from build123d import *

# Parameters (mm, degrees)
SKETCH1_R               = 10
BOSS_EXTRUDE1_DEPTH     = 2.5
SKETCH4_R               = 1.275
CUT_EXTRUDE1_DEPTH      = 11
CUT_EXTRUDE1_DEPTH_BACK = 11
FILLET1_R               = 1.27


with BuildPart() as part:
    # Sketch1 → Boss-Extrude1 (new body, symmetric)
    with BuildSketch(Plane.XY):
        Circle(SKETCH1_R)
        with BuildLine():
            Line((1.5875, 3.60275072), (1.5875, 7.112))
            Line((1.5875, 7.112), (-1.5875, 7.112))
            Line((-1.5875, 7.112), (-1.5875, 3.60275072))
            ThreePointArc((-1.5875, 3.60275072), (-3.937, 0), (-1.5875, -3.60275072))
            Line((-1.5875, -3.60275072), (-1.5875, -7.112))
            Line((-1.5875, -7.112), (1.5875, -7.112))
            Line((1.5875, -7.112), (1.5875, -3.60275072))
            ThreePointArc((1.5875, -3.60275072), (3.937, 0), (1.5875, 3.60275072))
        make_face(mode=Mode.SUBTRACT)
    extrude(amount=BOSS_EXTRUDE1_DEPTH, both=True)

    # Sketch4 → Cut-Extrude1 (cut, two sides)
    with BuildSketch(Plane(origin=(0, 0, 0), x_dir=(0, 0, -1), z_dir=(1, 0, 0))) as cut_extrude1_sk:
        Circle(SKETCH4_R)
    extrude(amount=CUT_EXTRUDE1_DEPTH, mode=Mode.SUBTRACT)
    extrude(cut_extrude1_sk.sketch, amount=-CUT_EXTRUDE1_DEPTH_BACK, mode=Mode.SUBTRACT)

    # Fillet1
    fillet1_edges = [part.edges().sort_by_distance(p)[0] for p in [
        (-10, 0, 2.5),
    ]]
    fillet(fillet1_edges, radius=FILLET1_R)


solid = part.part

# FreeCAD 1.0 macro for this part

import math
import FreeCAD as App
import Part
import Sketcher

V = App.Vector
Q = App.Units.Quantity


def edges_at(feature, points):
    """Names of the edges that pass closest to the given points."""
    edges = feature.Shape.Edges
    near = lambda p: min(range(len(edges)), key=lambda i: edges[i].distToShape(Part.Vertex(*p))[0])
    return sorted({f"Edge{near(p) + 1}" for p in points})

doc = App.newDocument("Part")
body = doc.addObject("PartDesign::Body", "Body")

# Sketch on XY plane
sketch1 = body.newObject("Sketcher::SketchObject", "Sketch")
sketch1.AttachmentSupport = (doc.getObject("XY_Plane"), [""])
sketch1.MapMode = "FlatFace"
sketch1.addGeometry([
    Part.Circle(V(0, 0, 0), V(0, 0, 1), 10),  # 0
    Part.LineSegment(V(1.6, 7.1, 0), V(1.6, 3.6, 0)),  # 1
    Part.ArcOfCircle(Part.Circle(V(0, 0, 0), V(0, 0, 1), 3.9), math.radians(-66), math.radians(66)),  # 2
    Part.LineSegment(V(1.6, -3.6, 0), V(1.6, -7.1, 0)),  # 3
    Part.LineSegment(V(1.6, -7.1, 0), V(-1.6, -7.1, 0)),  # 4
    Part.LineSegment(V(-1.6, -7.1, 0), V(-1.6, -3.6, 0)),  # 5
    Part.ArcOfCircle(Part.Circle(V(0, 0, 0), V(0, 0, 1), 3.9), math.radians(114), math.radians(246)),  # 6
    Part.LineSegment(V(-1.6, 3.6, 0), V(-1.6, 7.1, 0)),  # 7
    Part.LineSegment(V(-1.6, 7.1, 0), V(1.6, 7.1, 0)),  # 8
], False)
sketch1.addConstraint([
    Sketcher.Constraint("Coincident", 1, 2, 2, 2),
    Sketcher.Constraint("Coincident", 2, 1, 3, 1),
    Sketcher.Constraint("Coincident", 3, 2, 4, 1),
    Sketcher.Constraint("Coincident", 4, 2, 5, 1),
    Sketcher.Constraint("Coincident", 5, 2, 6, 2),
    Sketcher.Constraint("Coincident", 6, 1, 7, 1),
    Sketcher.Constraint("Coincident", 7, 2, 8, 1),
    Sketcher.Constraint("Coincident", 8, 2, 1, 1),
    Sketcher.Constraint("Vertical", 1),
    Sketcher.Constraint("Vertical", 3),
    Sketcher.Constraint("Horizontal", 4),
    Sketcher.Constraint("Vertical", 5),
    Sketcher.Constraint("Vertical", 7),
    Sketcher.Constraint("Horizontal", 8),
    Sketcher.Constraint("Coincident", 0, 3, -1, 1),
    Sketcher.Constraint("Coincident", 2, 3, -1, 1),
    Sketcher.Constraint("Coincident", 6, 3, -1, 1),
    Sketcher.Constraint("Equal", 2, 6),
    Sketcher.Constraint("Symmetric", 3, 2, 7, 2, -1, 1),
    Sketcher.Constraint("Horizontal", 2, 1, 5, 2),
    Sketcher.Constraint("Horizontal", 1, 2, 6, 1),
    Sketcher.Constraint("Diameter", 0, Q("20 mm")),
    Sketcher.Constraint("Radius", 2, Q("3.937 mm")),
    Sketcher.Constraint("DistanceX", 4, 2, 4, 1, Q("3.175 mm")),
    Sketcher.Constraint("DistanceY", 3, 2, -1, 1, Q("7.112 mm")),
])
pad1 = body.newObject("PartDesign::Pad", "Pad")
pad1.Profile = sketch1
pad1.Length = 5
pad1.Midplane = True

# Sketch on YZ plane
sketch2 = body.newObject("Sketcher::SketchObject", "Sketch001")
sketch2.AttachmentSupport = (doc.getObject("YZ_Plane"), [""])
sketch2.MapMode = "FlatFace"
sketch2.addGeometry(Part.Circle(V(0, 0, 0), V(0, 0, 1), 1.3), False)
sketch2.addConstraint([
    Sketcher.Constraint("Coincident", 0, 3, -1, 1),
    Sketcher.Constraint("Diameter", 0, Q("2.55 mm")),
])
pocket1 = body.newObject("PartDesign::Pocket", "Pocket")
pocket1.Profile = sketch2
pocket1.Type = "ThroughAll"
pocket1.Midplane = True
doc.recompute()

fillet = body.newObject("PartDesign::Fillet", "Fillet")
fillet.Base = (pocket1, edges_at(pocket1, [(-10, 0, 2.5)]))
fillet.Radius = 1.27

doc.recompute()
